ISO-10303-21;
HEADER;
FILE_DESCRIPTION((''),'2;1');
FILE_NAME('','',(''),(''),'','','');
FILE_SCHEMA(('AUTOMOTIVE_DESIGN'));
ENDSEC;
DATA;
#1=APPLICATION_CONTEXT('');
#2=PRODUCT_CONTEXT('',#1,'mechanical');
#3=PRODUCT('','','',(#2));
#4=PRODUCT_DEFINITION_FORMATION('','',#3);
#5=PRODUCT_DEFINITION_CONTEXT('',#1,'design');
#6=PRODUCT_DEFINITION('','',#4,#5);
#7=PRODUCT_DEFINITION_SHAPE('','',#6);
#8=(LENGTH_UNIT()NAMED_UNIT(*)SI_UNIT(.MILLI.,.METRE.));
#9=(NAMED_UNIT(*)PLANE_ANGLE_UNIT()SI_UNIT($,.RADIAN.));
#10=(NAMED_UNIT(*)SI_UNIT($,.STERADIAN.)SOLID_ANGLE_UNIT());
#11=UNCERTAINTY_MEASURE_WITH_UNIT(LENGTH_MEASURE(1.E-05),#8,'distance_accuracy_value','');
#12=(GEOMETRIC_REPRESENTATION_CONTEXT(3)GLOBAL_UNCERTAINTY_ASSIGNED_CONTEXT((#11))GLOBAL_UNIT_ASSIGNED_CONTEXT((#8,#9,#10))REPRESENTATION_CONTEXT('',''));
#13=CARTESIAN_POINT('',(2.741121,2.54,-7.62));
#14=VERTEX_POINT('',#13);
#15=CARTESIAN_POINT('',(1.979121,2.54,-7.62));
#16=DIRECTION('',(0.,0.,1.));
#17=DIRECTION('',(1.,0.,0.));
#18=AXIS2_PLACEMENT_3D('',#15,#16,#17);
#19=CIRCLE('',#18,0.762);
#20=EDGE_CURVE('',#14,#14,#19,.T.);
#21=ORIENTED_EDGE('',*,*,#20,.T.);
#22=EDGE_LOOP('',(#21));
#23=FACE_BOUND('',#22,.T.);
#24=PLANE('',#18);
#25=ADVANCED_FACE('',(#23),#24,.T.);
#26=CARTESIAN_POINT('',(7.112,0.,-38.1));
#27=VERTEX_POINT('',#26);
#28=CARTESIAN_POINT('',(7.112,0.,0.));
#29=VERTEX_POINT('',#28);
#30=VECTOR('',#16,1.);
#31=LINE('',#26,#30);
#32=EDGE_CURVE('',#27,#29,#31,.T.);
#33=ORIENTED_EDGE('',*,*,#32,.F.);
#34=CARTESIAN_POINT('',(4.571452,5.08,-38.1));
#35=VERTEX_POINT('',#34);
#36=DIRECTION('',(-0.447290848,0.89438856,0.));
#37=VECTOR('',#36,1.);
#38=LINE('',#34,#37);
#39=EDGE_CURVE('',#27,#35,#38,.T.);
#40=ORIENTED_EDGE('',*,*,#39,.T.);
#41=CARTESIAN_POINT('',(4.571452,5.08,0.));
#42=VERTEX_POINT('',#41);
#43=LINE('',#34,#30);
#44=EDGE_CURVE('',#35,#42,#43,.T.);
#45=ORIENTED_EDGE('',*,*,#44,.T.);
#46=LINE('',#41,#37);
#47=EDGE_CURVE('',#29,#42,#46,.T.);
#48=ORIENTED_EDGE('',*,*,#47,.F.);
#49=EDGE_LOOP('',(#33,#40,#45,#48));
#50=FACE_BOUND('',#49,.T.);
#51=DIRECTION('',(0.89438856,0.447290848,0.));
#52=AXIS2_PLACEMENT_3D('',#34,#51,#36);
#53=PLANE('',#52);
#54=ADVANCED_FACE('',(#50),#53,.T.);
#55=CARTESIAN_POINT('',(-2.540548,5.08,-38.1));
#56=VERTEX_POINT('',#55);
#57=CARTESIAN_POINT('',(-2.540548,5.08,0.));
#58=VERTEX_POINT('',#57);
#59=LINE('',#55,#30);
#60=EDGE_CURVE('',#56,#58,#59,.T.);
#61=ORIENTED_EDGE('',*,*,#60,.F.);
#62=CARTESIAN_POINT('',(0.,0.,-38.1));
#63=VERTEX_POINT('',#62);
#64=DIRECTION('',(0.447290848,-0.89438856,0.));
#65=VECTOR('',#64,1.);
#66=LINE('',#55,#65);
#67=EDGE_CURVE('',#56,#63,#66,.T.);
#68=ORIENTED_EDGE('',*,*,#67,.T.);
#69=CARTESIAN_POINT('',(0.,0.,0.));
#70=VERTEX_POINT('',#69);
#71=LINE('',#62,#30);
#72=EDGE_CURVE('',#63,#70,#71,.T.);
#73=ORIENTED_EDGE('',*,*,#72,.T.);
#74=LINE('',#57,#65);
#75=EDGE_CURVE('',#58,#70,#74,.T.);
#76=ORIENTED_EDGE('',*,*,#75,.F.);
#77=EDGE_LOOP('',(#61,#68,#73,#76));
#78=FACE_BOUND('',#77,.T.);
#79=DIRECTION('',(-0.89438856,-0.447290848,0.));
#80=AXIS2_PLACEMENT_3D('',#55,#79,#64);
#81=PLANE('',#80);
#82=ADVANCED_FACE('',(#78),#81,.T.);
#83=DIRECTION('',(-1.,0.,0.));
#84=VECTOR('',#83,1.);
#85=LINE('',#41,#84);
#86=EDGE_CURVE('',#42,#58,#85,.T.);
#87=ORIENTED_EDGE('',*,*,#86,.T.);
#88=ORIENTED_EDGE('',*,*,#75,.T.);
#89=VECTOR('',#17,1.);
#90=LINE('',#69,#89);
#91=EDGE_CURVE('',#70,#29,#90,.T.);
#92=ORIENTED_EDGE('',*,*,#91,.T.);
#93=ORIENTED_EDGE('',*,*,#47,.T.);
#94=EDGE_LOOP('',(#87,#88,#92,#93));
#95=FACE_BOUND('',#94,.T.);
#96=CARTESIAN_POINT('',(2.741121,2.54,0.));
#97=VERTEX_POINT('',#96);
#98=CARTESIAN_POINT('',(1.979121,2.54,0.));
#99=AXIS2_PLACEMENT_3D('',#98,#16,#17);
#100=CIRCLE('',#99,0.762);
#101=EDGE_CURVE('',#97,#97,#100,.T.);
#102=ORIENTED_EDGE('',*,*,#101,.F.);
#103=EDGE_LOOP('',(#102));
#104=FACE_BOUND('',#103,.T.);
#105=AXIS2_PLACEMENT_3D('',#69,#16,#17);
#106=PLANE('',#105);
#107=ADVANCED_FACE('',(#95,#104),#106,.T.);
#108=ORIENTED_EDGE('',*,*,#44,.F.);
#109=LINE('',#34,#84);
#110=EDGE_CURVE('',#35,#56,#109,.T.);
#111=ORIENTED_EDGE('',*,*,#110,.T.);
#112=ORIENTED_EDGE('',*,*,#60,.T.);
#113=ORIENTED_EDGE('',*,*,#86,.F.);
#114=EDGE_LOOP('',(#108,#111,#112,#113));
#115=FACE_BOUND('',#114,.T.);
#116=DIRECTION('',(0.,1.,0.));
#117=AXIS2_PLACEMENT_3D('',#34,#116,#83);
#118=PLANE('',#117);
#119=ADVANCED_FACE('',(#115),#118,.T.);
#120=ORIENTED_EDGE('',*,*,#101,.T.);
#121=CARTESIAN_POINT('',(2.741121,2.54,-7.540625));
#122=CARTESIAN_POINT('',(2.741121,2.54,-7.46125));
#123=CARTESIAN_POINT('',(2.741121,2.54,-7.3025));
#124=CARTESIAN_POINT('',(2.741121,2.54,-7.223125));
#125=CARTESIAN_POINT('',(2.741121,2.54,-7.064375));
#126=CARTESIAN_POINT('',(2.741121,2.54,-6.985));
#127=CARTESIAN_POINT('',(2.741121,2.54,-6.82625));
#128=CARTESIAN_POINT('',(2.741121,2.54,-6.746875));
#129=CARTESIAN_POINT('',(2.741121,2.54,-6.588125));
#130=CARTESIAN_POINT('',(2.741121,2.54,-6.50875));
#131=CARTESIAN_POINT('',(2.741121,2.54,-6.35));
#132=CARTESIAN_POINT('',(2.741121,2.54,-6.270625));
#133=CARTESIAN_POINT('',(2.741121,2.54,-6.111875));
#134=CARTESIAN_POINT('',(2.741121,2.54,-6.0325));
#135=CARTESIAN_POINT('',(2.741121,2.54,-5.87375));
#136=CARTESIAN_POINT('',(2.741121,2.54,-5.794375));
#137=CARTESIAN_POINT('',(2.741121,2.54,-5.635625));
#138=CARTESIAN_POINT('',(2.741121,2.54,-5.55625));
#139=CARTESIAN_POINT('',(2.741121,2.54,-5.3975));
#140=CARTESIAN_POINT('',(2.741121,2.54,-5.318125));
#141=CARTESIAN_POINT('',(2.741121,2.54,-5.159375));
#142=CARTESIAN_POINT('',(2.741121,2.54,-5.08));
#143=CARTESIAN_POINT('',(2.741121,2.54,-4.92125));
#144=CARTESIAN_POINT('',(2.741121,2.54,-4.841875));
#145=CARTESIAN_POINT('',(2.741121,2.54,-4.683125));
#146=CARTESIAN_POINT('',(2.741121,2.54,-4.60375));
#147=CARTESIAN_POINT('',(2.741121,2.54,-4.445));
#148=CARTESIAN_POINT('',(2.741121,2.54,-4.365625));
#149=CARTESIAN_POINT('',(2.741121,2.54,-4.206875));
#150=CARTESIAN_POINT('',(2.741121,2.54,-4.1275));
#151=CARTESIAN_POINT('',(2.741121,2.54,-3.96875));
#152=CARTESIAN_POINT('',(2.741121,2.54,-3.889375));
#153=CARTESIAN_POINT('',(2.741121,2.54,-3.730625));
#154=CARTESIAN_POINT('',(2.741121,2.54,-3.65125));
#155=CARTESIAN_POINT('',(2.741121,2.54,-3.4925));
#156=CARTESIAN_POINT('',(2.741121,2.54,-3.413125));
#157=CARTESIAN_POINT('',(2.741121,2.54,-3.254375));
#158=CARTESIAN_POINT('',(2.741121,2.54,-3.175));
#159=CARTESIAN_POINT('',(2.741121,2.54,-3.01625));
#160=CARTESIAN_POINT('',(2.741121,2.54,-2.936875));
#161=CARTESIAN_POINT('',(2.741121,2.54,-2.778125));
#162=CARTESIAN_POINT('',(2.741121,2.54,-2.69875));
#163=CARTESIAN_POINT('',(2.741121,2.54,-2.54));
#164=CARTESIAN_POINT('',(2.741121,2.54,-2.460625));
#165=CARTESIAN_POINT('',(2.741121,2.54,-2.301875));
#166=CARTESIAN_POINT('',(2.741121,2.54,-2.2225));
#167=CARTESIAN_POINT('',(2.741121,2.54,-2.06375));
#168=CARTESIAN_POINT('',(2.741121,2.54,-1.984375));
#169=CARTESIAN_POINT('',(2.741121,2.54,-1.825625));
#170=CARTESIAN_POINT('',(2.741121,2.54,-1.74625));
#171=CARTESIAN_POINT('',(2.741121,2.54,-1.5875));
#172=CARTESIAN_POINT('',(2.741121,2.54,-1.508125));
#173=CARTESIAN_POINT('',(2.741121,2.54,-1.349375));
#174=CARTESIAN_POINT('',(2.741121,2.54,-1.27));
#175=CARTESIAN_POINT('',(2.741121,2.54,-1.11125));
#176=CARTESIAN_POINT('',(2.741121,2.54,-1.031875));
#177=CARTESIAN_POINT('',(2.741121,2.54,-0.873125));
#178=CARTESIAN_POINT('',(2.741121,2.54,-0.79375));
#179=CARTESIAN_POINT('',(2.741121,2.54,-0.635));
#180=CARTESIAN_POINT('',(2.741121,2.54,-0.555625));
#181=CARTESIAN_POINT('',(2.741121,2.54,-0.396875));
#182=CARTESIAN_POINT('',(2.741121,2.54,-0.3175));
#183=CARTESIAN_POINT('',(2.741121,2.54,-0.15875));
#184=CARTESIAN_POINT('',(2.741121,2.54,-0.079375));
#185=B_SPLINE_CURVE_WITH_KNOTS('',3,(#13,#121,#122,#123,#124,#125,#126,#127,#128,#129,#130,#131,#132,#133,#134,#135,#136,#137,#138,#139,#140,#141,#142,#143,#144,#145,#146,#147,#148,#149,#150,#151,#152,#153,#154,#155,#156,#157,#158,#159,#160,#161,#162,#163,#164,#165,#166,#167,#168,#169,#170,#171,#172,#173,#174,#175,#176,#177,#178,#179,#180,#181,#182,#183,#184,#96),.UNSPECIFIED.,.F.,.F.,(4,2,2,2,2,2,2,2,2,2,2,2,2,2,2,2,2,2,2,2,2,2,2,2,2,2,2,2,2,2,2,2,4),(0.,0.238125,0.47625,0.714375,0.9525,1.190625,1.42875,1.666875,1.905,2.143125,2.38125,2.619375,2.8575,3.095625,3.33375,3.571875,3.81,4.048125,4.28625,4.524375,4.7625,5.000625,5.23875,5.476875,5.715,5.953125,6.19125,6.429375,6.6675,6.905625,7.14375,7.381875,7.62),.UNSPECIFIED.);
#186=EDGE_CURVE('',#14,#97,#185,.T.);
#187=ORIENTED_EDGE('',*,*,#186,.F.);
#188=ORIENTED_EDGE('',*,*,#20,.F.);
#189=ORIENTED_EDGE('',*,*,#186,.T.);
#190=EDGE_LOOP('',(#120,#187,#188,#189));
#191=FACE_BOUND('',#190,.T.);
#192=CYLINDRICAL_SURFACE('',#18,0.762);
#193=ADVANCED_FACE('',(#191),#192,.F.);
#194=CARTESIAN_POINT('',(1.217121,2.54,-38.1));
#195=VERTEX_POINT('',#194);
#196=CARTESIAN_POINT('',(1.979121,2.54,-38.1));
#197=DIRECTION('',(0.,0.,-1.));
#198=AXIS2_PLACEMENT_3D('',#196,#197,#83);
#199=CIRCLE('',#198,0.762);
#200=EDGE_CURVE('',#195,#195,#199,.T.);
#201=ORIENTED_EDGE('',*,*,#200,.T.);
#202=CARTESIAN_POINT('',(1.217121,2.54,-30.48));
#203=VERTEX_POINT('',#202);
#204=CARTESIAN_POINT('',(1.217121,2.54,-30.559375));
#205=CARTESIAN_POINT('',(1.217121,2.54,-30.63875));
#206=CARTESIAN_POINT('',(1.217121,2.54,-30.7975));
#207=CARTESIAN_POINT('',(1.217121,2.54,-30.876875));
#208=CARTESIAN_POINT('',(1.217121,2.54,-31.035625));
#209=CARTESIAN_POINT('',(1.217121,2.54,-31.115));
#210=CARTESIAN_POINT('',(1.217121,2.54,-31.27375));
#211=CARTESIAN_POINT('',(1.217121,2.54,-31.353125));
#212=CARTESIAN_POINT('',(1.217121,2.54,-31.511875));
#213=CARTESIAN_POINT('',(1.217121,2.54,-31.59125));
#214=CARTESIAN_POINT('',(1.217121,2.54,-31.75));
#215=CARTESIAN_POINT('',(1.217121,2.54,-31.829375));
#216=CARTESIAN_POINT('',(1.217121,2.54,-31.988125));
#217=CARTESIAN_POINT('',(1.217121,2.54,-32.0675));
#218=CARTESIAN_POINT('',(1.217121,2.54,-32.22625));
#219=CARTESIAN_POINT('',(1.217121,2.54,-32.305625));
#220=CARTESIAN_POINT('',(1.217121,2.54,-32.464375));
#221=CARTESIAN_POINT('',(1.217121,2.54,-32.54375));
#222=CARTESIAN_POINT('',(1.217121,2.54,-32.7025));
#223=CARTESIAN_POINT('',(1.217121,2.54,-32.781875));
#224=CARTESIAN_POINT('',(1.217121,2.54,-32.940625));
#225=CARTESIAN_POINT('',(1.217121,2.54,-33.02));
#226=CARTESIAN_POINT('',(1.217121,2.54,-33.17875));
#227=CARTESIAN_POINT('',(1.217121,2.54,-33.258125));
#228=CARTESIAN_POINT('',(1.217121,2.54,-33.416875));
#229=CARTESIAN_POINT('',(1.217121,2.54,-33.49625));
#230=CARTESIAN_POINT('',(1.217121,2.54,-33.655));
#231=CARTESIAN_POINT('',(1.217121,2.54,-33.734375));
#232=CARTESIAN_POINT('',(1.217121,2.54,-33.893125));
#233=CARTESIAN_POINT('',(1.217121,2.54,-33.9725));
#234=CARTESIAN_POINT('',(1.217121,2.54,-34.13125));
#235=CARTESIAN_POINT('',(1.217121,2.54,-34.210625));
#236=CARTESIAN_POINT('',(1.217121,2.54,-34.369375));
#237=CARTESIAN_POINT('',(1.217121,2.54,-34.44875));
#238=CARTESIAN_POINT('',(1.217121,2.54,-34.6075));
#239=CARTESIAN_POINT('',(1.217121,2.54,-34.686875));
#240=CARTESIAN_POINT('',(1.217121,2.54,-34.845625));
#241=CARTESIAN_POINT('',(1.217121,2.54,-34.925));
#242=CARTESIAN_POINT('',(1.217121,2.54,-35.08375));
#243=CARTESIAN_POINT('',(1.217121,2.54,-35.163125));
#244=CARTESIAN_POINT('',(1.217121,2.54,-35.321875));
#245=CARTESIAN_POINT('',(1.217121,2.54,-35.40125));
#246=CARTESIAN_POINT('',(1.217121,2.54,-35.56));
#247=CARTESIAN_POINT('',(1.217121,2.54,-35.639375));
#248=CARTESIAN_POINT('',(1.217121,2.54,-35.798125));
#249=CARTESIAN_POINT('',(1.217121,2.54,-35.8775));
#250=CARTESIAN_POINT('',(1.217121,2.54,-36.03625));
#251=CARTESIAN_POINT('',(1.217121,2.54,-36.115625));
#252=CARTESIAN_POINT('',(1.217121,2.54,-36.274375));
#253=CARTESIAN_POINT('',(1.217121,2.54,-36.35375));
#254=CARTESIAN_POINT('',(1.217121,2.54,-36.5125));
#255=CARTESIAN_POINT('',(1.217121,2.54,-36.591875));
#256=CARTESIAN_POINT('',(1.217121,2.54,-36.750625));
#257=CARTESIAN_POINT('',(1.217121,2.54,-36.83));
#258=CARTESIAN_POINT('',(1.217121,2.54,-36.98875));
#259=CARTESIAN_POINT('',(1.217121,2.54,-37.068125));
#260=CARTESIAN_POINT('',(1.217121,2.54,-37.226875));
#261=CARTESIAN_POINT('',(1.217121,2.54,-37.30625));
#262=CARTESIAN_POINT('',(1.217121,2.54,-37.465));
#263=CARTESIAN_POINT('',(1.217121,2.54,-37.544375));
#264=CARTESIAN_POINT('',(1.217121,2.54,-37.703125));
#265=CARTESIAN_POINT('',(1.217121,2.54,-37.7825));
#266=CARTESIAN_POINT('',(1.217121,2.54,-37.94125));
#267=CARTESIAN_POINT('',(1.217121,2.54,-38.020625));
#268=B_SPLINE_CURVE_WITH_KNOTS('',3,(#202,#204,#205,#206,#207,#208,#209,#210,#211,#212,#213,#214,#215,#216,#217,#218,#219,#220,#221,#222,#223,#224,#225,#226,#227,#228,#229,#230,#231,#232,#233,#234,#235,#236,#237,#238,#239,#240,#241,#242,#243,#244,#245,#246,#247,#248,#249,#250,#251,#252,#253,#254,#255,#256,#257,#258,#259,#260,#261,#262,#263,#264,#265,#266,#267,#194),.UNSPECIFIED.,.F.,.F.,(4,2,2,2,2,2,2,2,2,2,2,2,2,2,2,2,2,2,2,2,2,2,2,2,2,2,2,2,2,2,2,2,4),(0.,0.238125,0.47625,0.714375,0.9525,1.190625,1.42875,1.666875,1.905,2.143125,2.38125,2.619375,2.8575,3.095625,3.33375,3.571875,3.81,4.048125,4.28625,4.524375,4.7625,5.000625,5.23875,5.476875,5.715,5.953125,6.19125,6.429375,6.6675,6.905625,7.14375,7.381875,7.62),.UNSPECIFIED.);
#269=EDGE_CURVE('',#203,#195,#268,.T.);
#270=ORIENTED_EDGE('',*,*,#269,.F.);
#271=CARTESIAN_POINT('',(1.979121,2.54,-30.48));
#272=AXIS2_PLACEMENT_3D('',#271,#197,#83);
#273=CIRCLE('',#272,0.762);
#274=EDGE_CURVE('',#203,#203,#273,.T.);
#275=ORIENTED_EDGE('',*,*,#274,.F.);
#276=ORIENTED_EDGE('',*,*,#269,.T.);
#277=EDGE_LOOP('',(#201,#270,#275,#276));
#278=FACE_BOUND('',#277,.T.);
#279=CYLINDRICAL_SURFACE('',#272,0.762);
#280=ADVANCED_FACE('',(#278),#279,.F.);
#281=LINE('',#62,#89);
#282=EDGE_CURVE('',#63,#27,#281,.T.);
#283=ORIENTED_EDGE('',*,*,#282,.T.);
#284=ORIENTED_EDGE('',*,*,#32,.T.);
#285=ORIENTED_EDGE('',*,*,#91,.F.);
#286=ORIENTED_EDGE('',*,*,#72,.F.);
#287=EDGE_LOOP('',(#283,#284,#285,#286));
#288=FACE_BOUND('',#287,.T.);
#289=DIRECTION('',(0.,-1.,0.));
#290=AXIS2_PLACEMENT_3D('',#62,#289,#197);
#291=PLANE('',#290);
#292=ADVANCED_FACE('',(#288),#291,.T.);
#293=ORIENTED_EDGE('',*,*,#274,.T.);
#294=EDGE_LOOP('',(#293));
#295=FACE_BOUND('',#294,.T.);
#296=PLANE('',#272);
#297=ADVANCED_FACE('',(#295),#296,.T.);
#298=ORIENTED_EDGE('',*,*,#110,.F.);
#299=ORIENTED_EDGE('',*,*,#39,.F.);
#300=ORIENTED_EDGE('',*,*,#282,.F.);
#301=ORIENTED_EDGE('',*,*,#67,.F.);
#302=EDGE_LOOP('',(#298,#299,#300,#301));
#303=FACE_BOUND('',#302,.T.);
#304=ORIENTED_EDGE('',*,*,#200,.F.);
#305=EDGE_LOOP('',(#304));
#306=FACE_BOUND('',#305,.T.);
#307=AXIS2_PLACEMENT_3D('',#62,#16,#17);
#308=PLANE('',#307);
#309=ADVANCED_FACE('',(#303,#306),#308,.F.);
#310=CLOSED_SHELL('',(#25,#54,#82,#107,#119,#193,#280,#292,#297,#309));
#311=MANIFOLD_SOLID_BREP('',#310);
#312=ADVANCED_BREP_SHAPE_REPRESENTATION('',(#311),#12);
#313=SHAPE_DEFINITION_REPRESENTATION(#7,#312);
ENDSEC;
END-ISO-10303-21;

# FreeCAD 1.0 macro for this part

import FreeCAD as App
import Part
import Sketcher
Q = App.Units.Quantity

doc = App.newDocument("Part")
body = doc.addObject("PartDesign::Body", "Body")

# Sketch on XY plane
sketch1 = doc.addObject("Sketcher::SketchObject", "Sketch")
body.addObject(sketch1)
sketch1.AttachmentSupport = (doc.XY_Plane, [""])
sketch1.MapMode = "FlatFace"
sketch1.addGeometry([
    Part.LineSegment(App.Vector(0, 0, 0), App.Vector(7.112, 0, 0)),
    Part.LineSegment(App.Vector(7.112, 0, 0), App.Vector(4.571452, 5.08, 0)),
    Part.LineSegment(App.Vector(4.571452, 5.08, 0), App.Vector(-2.540548, 5.08, 0)),
    Part.LineSegment(App.Vector(-2.540548, 5.08, 0), App.Vector(0, 0, 0)),
], False)
sketch1.addConstraint([
    Sketcher.Constraint("Coincident", 0, 2, 1, 1),
    Sketcher.Constraint("Coincident", 1, 2, 2, 1),
    Sketcher.Constraint("Coincident", 2, 2, 3, 1),
    Sketcher.Constraint("Coincident", 3, 2, 0, 1),
    Sketcher.Constraint("Horizontal", 0),
    Sketcher.Constraint("Horizontal", 2),
    Sketcher.Constraint("Coincident", 3, 2, -1, 1),
    Sketcher.Constraint("Parallel", 1, 3),
    Sketcher.Constraint("DistanceX", 0, 1, 0, 2, Q("0.28 in")),
    Sketcher.Constraint("DistanceY", -1, 1, 1, 2, Q("0.2 in")),
    Sketcher.Constraint("Angle", 1, Q("116.57 deg")),
])
pad1 = doc.addObject("PartDesign::Pad", "Pad")
body.addObject(pad1)
pad1.Profile = sketch1
pad1.Length = Q("1.5 in")
pad1.Reversed = True

# Sketch on XY plane
sketch2 = doc.addObject("Sketcher::SketchObject", "Sketch001")
body.addObject(sketch2)
sketch2.AttachmentSupport = (doc.XY_Plane, [""])
sketch2.MapMode = "FlatFace"
sketch2.addGeometry(Part.Circle(App.Vector(1.979121, 2.54, 0), App.Vector(0, 0, 1), 0.762), False)
sketch2.addConstraint([
    Sketcher.Constraint("Diameter", 0, Q("0.06 in")),
    Sketcher.Constraint("DistanceY", -1, 1, 0, 3, Q("0.1 in")),
    Sketcher.Constraint("DistanceX", -1, 1, 0, 3, 1.979121),
])
pocket1 = doc.addObject("PartDesign::Pocket", "Pocket")
body.addObject(pocket1)
pocket1.Profile = sketch2
pocket1.Length = Q("0.3 in")

# Sketch on XY plane
sketch3 = doc.addObject("Sketcher::SketchObject", "Sketch002")
body.addObject(sketch3)
sketch3.AttachmentSupport = (doc.XY_Plane, [""])
sketch3.MapMode = "FlatFace"
sketch3.AttachmentOffset = App.Placement(App.Vector(0, 0, -1.2 * 25.4), App.Rotation())
sketch3.addGeometry(Part.Circle(App.Vector(1.979121, 2.54, 0), App.Vector(0, 0, 1), 0.762), False)
sketch3.addConstraint([
    Sketcher.Constraint("Diameter", 0, Q("0.06 in")),
    Sketcher.Constraint("DistanceY", -1, 1, 0, 3, Q("0.1 in")),
    Sketcher.Constraint("DistanceX", -1, 1, 0, 3, 1.979121),
])
pocket2 = doc.addObject("PartDesign::Pocket", "Pocket001")
body.addObject(pocket2)
pocket2.Profile = sketch3
pocket2.Length = Q("0.3 in")

doc.recompute()
